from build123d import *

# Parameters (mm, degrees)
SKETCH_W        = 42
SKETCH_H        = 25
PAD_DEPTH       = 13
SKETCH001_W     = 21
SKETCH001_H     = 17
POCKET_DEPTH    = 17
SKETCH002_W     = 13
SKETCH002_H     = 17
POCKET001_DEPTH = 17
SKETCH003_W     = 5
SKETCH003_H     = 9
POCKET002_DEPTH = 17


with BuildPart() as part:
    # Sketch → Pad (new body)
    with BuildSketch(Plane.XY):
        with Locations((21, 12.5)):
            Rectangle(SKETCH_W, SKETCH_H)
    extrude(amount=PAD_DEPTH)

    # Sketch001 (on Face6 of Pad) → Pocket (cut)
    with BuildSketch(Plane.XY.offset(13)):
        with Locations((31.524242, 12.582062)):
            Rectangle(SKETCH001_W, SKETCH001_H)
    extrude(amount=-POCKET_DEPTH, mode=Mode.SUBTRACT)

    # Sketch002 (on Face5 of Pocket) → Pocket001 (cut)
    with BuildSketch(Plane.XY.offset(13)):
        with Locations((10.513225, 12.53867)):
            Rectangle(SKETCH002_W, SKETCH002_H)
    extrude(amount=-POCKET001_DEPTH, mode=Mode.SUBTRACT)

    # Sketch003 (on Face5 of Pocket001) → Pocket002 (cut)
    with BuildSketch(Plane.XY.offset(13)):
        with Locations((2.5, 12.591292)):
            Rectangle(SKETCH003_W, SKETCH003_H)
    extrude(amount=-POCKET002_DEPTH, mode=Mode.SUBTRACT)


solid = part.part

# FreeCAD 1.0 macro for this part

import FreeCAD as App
import Part
import Sketcher

V = App.Vector

doc = App.newDocument("Part")
body = doc.addObject("PartDesign::Body", "Body")

sketch1 = body.newObject("Sketcher::SketchObject", "Sketch")
sketch1.AttachmentSupport = (doc.getObject("XY_Plane"), [""])
sketch1.MapMode = "FlatFace"
sketch1.addGeometry(Part.LineSegment(V(0, 25, 0), V(0, 0, 0)), False)
sketch1.addGeometry(Part.LineSegment(V(0, 0, 0), V(42, 0, 0)), False)
sketch1.addGeometry(Part.LineSegment(V(42, 0, 0), V(42, 25, 0)), False)
sketch1.addGeometry(Part.LineSegment(V(42, 25, 0), V(0, 25, 0)), False)
sketch1.addConstraint(Sketcher.Constraint("Coincident", 0, 2, 1, 1))
sketch1.addConstraint(Sketcher.Constraint("Coincident", 1, 2, 2, 1))
sketch1.addConstraint(Sketcher.Constraint("Coincident", 2, 2, 3, 1))
sketch1.addConstraint(Sketcher.Constraint("Coincident", 3, 2, 0, 1))
sketch1.addConstraint(Sketcher.Constraint("Vertical", 0))
sketch1.addConstraint(Sketcher.Constraint("Horizontal", 1))
sketch1.addConstraint(Sketcher.Constraint("Vertical", 2))
sketch1.addConstraint(Sketcher.Constraint("Horizontal", 3))
sketch1.addConstraint(Sketcher.Constraint("Coincident", 0, 2, -1, 1))
sketch1.addConstraint(Sketcher.Constraint("DistanceX", 1, 1, 1, 2, 42.0))
sketch1.addConstraint(Sketcher.Constraint("DistanceY", 0, 2, 0, 1, 25.0))
pad1 = body.newObject("PartDesign::Pad", "Pad")
pad1.Profile = sketch1
pad1.Length = 13

sketch2 = body.newObject("Sketcher::SketchObject", "Sketch001")
sketch2.AttachmentSupport = (doc.getObject("XY_Plane"), [""])
sketch2.MapMode = "FlatFace"
sketch2.AttachmentOffset = App.Placement(V(0, 0, 13), App.Rotation())
sketch2.addGeometry(Part.LineSegment(V(21, 21, 0), V(21, 4, 0)), False)
sketch2.addGeometry(Part.LineSegment(V(21, 4, 0), V(42, 4, 0)), False)
sketch2.addGeometry(Part.LineSegment(V(42, 4, 0), V(42, 21, 0)), False)
sketch2.addGeometry(Part.LineSegment(V(42, 21, 0), V(21, 21, 0)), False)
sketch2.addConstraint(Sketcher.Constraint("Coincident", 0, 2, 1, 1))
sketch2.addConstraint(Sketcher.Constraint("Coincident", 1, 2, 2, 1))
sketch2.addConstraint(Sketcher.Constraint("Coincident", 2, 2, 3, 1))
sketch2.addConstraint(Sketcher.Constraint("Coincident", 3, 2, 0, 1))
sketch2.addConstraint(Sketcher.Constraint("Vertical", 0))
sketch2.addConstraint(Sketcher.Constraint("Horizontal", 1))
sketch2.addConstraint(Sketcher.Constraint("Vertical", 2))
sketch2.addConstraint(Sketcher.Constraint("Horizontal", 3))
sketch2.addConstraint(Sketcher.Constraint("DistanceX", 1, 1, 1, 2, 21.0))
sketch2.addConstraint(Sketcher.Constraint("DistanceY", 0, 2, 0, 1, 17.0))
sketch2.addConstraint(Sketcher.Constraint("DistanceY", -1, 1, 0, 2, 4.082062))
sketch2.addConstraint(Sketcher.Constraint("DistanceX", -1, 1, 0, 2, 21.024242))
pocket1 = body.newObject("PartDesign::Pocket", "Pocket")
pocket1.Profile = sketch2
pocket1.Length = 17

sketch3 = body.newObject("Sketcher::SketchObject", "Sketch002")
sketch3.AttachmentSupport = (doc.getObject("XY_Plane"), [""])
sketch3.MapMode = "FlatFace"
sketch3.AttachmentOffset = App.Placement(V(0, 0, 13), App.Rotation())
sketch3.addGeometry(Part.LineSegment(V(4, 21, 0), V(4, 4, 0)), False)
sketch3.addGeometry(Part.LineSegment(V(4, 4, 0), V(17, 4, 0)), False)
sketch3.addGeometry(Part.LineSegment(V(17, 4, 0), V(17, 21, 0)), False)
sketch3.addGeometry(Part.LineSegment(V(17, 21, 0), V(4, 21, 0)), False)
sketch3.addConstraint(Sketcher.Constraint("Coincident", 0, 2, 1, 1))
sketch3.addConstraint(Sketcher.Constraint("Coincident", 1, 2, 2, 1))
sketch3.addConstraint(Sketcher.Constraint("Coincident", 2, 2, 3, 1))
sketch3.addConstraint(Sketcher.Constraint("Coincident", 3, 2, 0, 1))
sketch3.addConstraint(Sketcher.Constraint("Vertical", 0))
sketch3.addConstraint(Sketcher.Constraint("Horizontal", 1))
sketch3.addConstraint(Sketcher.Constraint("Vertical", 2))
sketch3.addConstraint(Sketcher.Constraint("Horizontal", 3))
sketch3.addConstraint(Sketcher.Constraint("DistanceX", 1, 1, 1, 2, 13.0))
sketch3.addConstraint(Sketcher.Constraint("DistanceY", 0, 2, 0, 1, 17.0))
sketch3.addConstraint(Sketcher.Constraint("DistanceY", -1, 1, 0, 2, 4.03867))
sketch3.addConstraint(Sketcher.Constraint("DistanceX", -1, 1, 0, 2, 4.013225))
pocket2 = body.newObject("PartDesign::Pocket", "Pocket001")
pocket2.Profile = sketch3
pocket2.Length = 17

sketch4 = body.newObject("Sketcher::SketchObject", "Sketch003")
sketch4.AttachmentSupport = (doc.getObject("XY_Plane"), [""])
sketch4.MapMode = "FlatFace"
sketch4.AttachmentOffset = App.Placement(V(0, 0, 13), App.Rotation())
sketch4.addGeometry(Part.LineSegment(V(0, 17, 0), V(0, 8, 0)), False)
sketch4.addGeometry(Part.LineSegment(V(0, 8, 0), V(5, 8, 0)), False)
sketch4.addGeometry(Part.LineSegment(V(5, 8, 0), V(5, 17, 0)), False)
sketch4.addGeometry(Part.LineSegment(V(5, 17, 0), V(0, 17, 0)), False)
sketch4.addConstraint(Sketcher.Constraint("Coincident", 0, 2, 1, 1))
sketch4.addConstraint(Sketcher.Constraint("Coincident", 1, 2, 2, 1))
sketch4.addConstraint(Sketcher.Constraint("Coincident", 2, 2, 3, 1))
sketch4.addConstraint(Sketcher.Constraint("Coincident", 3, 2, 0, 1))
sketch4.addConstraint(Sketcher.Constraint("Vertical", 0))
sketch4.addConstraint(Sketcher.Constraint("Horizontal", 1))
sketch4.addConstraint(Sketcher.Constraint("Vertical", 2))
sketch4.addConstraint(Sketcher.Constraint("Horizontal", 3))
sketch4.addConstraint(Sketcher.Constraint("PointOnObject", 0, 2, -2))
sketch4.addConstraint(Sketcher.Constraint("DistanceX", 1, 1, 1, 2, 5.0))
sketch4.addConstraint(Sketcher.Constraint("DistanceY", 0, 2, 0, 1, 9.0))
sketch4.addConstraint(Sketcher.Constraint("DistanceY", -1, 1, 0, 2, 8.091292))
pocket3 = body.newObject("PartDesign::Pocket", "Pocket002")
pocket3.Profile = sketch4
pocket3.Length = 17

doc.recompute()
